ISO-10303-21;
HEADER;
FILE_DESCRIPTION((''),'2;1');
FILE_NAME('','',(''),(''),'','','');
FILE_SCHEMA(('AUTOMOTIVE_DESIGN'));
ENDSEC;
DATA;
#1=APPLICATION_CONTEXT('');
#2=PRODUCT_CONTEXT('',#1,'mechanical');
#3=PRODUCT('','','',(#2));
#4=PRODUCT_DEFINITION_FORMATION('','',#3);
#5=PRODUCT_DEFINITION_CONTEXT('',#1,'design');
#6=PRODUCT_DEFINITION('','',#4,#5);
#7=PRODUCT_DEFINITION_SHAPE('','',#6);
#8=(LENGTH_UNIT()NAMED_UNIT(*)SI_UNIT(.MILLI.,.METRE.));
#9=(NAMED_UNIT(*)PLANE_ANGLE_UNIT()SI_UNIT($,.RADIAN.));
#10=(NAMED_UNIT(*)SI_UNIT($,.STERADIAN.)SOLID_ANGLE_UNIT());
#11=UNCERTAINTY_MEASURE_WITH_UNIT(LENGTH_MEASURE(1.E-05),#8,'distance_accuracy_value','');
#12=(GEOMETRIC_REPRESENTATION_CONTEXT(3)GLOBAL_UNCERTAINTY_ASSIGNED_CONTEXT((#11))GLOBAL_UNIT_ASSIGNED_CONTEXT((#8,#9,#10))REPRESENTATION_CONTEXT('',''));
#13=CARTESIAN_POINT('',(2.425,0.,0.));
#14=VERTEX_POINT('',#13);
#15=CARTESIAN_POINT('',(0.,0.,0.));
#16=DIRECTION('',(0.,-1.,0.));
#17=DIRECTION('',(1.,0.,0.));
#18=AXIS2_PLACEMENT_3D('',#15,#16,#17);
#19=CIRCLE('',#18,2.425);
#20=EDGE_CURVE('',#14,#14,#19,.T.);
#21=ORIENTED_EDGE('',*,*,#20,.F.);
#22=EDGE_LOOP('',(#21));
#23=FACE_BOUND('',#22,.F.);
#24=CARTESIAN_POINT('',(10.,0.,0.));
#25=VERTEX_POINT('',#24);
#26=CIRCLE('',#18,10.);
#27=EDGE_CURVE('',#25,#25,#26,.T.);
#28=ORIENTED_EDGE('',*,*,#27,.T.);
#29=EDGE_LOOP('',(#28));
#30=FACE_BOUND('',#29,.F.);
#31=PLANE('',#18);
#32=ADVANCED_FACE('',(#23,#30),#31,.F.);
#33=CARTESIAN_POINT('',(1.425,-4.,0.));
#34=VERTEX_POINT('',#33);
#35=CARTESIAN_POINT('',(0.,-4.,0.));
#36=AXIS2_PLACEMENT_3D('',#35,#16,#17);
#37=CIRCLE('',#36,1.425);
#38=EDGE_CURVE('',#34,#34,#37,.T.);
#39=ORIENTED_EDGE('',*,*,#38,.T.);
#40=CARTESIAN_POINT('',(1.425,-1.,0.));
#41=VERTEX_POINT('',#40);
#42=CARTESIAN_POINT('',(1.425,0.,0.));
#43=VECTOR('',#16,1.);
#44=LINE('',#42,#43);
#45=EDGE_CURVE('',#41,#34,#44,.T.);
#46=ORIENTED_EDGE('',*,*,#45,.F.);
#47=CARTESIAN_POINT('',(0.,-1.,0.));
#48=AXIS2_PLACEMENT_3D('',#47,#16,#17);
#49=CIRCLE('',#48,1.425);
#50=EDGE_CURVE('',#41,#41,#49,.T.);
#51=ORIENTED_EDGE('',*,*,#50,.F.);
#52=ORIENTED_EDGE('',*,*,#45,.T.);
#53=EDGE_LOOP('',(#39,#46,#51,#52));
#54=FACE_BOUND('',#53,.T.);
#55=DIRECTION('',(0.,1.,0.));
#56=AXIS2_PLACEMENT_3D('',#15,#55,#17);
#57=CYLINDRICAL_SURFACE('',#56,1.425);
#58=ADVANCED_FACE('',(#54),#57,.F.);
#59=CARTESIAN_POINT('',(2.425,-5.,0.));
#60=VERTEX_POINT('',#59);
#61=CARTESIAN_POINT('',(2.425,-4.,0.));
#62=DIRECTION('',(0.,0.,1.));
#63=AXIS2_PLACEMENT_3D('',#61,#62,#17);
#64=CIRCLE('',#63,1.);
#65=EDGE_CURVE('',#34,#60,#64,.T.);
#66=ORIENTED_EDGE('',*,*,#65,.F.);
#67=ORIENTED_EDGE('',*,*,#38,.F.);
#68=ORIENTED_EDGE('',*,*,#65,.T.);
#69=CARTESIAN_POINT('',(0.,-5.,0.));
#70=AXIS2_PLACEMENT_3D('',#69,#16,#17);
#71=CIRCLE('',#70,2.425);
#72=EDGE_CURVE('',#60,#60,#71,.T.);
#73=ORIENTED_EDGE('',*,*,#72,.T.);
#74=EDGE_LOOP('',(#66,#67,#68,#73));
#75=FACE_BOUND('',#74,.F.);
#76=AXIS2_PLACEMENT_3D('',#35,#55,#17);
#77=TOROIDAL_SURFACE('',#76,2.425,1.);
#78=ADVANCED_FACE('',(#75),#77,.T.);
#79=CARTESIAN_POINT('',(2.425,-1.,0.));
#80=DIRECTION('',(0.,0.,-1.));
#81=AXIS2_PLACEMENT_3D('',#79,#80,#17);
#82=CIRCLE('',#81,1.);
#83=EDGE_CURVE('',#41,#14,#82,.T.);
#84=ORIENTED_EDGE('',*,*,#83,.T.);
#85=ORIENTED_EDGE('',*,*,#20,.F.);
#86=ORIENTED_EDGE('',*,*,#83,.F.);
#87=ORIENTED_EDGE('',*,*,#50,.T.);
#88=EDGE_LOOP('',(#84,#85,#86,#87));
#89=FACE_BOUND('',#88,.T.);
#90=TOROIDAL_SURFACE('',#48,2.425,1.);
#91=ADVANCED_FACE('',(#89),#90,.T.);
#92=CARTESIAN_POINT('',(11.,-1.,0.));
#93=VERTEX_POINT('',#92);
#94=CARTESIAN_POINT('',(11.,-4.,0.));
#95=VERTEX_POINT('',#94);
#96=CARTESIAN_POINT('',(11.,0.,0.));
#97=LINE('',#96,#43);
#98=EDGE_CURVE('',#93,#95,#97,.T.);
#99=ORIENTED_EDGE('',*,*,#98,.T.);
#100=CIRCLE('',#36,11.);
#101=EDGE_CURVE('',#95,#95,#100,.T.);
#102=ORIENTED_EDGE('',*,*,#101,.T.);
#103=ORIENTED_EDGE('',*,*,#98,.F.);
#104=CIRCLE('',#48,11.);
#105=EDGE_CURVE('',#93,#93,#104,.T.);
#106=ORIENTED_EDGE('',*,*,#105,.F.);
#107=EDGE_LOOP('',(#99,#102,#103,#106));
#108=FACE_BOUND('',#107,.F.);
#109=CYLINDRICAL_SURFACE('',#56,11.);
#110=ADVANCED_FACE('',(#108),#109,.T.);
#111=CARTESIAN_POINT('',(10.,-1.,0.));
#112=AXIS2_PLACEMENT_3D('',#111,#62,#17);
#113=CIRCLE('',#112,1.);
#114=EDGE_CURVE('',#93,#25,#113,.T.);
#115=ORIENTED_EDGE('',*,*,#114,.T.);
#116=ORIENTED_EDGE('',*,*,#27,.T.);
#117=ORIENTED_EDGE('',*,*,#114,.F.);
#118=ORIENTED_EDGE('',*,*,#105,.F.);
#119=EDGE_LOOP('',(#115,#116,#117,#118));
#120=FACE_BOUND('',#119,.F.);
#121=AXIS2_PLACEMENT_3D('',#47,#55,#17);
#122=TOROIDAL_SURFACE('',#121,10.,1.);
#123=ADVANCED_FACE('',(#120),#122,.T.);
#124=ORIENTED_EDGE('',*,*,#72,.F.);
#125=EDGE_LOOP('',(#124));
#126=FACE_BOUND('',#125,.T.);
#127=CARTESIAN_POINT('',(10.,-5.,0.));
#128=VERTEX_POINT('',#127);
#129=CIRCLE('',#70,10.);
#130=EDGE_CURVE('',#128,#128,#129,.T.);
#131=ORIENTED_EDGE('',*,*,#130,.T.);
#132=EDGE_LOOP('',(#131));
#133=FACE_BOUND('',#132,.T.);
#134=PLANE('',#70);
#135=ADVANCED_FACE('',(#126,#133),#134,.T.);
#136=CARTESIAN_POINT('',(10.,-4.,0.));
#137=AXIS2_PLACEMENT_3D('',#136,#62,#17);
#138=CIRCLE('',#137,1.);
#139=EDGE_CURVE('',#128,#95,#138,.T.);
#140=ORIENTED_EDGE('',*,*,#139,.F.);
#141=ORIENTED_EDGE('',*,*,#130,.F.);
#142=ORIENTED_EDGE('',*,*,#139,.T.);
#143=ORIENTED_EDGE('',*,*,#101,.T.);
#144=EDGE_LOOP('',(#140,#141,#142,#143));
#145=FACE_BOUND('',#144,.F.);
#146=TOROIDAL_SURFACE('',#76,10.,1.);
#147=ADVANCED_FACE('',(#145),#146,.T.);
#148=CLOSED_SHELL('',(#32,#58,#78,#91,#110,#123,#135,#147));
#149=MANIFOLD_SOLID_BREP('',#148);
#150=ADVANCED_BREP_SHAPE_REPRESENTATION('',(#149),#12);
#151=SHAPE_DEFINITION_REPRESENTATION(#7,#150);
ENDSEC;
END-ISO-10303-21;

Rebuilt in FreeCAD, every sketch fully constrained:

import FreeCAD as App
import Part
import Sketcher
from FreeCAD import Vector
Q = App.Units.Quantity


def edges_at(feature, points):
    """Names of the edges that pass closest to the given points."""
    edges = feature.Shape.Edges
    near = lambda p: min(range(len(edges)), key=lambda i: edges[i].distToShape(Part.Vertex(*p))[0])
    return sorted({f"Edge{near(p) + 1}" for p in points})

doc = App.newDocument("Part")
body = doc.addObject("PartDesign::Body", "Body")

# Sketch on XZ plane
sketch1 = body.newObject("Sketcher::SketchObject", "Sketch")
sketch1.AttachmentSupport = (doc.getObject("XZ_Plane"), [""])
sketch1.MapMode = "FlatFace"
sketch1.addGeometry(Part.Circle(Vector(0, 0, 0), Vector(0, 0, 1), 11), False)
sketch1.addGeometry(Part.Circle(Vector(0, 0, 0), Vector(0, 0, 1), 1.4), False)
sketch1.addConstraint(Sketcher.Constraint("Coincident", 0, 3, -1, 1))
sketch1.addConstraint(Sketcher.Constraint("Coincident", 1, 3, -1, 1))
sketch1.addConstraint(Sketcher.Constraint("Diameter", 0, Q("22 mm")))
sketch1.addConstraint(Sketcher.Constraint("Diameter", 1, Q("2.85 mm")))
pad1 = body.newObject("PartDesign::Pad", "Pad")
pad1.Profile = sketch1
pad1.Length = 5
doc.recompute()

fillet = body.newObject("PartDesign::Fillet", "Fillet")
fillet.Base = (pad1, edges_at(pad1, [(-1.425, -5, 0)]))
fillet.Radius = 1
doc.recompute()

fillet2 = body.newObject("PartDesign::Fillet", "Fillet001")
fillet2.Base = (fillet, edges_at(fillet, [(-1.425, 0, 0)]))
fillet2.Radius = 1
doc.recompute()

fillet3 = body.newObject("PartDesign::Fillet", "Fillet002")
fillet3.Base = (fillet2, edges_at(fillet2, [(-11, -5, 0)]))
fillet3.Radius = 1
doc.recompute()

fillet4 = body.newObject("PartDesign::Fillet", "Fillet003")
fillet4.Base = (fillet3, edges_at(fillet3, [(-11, 0, 0)]))
fillet4.Radius = 1

doc.recompute()
